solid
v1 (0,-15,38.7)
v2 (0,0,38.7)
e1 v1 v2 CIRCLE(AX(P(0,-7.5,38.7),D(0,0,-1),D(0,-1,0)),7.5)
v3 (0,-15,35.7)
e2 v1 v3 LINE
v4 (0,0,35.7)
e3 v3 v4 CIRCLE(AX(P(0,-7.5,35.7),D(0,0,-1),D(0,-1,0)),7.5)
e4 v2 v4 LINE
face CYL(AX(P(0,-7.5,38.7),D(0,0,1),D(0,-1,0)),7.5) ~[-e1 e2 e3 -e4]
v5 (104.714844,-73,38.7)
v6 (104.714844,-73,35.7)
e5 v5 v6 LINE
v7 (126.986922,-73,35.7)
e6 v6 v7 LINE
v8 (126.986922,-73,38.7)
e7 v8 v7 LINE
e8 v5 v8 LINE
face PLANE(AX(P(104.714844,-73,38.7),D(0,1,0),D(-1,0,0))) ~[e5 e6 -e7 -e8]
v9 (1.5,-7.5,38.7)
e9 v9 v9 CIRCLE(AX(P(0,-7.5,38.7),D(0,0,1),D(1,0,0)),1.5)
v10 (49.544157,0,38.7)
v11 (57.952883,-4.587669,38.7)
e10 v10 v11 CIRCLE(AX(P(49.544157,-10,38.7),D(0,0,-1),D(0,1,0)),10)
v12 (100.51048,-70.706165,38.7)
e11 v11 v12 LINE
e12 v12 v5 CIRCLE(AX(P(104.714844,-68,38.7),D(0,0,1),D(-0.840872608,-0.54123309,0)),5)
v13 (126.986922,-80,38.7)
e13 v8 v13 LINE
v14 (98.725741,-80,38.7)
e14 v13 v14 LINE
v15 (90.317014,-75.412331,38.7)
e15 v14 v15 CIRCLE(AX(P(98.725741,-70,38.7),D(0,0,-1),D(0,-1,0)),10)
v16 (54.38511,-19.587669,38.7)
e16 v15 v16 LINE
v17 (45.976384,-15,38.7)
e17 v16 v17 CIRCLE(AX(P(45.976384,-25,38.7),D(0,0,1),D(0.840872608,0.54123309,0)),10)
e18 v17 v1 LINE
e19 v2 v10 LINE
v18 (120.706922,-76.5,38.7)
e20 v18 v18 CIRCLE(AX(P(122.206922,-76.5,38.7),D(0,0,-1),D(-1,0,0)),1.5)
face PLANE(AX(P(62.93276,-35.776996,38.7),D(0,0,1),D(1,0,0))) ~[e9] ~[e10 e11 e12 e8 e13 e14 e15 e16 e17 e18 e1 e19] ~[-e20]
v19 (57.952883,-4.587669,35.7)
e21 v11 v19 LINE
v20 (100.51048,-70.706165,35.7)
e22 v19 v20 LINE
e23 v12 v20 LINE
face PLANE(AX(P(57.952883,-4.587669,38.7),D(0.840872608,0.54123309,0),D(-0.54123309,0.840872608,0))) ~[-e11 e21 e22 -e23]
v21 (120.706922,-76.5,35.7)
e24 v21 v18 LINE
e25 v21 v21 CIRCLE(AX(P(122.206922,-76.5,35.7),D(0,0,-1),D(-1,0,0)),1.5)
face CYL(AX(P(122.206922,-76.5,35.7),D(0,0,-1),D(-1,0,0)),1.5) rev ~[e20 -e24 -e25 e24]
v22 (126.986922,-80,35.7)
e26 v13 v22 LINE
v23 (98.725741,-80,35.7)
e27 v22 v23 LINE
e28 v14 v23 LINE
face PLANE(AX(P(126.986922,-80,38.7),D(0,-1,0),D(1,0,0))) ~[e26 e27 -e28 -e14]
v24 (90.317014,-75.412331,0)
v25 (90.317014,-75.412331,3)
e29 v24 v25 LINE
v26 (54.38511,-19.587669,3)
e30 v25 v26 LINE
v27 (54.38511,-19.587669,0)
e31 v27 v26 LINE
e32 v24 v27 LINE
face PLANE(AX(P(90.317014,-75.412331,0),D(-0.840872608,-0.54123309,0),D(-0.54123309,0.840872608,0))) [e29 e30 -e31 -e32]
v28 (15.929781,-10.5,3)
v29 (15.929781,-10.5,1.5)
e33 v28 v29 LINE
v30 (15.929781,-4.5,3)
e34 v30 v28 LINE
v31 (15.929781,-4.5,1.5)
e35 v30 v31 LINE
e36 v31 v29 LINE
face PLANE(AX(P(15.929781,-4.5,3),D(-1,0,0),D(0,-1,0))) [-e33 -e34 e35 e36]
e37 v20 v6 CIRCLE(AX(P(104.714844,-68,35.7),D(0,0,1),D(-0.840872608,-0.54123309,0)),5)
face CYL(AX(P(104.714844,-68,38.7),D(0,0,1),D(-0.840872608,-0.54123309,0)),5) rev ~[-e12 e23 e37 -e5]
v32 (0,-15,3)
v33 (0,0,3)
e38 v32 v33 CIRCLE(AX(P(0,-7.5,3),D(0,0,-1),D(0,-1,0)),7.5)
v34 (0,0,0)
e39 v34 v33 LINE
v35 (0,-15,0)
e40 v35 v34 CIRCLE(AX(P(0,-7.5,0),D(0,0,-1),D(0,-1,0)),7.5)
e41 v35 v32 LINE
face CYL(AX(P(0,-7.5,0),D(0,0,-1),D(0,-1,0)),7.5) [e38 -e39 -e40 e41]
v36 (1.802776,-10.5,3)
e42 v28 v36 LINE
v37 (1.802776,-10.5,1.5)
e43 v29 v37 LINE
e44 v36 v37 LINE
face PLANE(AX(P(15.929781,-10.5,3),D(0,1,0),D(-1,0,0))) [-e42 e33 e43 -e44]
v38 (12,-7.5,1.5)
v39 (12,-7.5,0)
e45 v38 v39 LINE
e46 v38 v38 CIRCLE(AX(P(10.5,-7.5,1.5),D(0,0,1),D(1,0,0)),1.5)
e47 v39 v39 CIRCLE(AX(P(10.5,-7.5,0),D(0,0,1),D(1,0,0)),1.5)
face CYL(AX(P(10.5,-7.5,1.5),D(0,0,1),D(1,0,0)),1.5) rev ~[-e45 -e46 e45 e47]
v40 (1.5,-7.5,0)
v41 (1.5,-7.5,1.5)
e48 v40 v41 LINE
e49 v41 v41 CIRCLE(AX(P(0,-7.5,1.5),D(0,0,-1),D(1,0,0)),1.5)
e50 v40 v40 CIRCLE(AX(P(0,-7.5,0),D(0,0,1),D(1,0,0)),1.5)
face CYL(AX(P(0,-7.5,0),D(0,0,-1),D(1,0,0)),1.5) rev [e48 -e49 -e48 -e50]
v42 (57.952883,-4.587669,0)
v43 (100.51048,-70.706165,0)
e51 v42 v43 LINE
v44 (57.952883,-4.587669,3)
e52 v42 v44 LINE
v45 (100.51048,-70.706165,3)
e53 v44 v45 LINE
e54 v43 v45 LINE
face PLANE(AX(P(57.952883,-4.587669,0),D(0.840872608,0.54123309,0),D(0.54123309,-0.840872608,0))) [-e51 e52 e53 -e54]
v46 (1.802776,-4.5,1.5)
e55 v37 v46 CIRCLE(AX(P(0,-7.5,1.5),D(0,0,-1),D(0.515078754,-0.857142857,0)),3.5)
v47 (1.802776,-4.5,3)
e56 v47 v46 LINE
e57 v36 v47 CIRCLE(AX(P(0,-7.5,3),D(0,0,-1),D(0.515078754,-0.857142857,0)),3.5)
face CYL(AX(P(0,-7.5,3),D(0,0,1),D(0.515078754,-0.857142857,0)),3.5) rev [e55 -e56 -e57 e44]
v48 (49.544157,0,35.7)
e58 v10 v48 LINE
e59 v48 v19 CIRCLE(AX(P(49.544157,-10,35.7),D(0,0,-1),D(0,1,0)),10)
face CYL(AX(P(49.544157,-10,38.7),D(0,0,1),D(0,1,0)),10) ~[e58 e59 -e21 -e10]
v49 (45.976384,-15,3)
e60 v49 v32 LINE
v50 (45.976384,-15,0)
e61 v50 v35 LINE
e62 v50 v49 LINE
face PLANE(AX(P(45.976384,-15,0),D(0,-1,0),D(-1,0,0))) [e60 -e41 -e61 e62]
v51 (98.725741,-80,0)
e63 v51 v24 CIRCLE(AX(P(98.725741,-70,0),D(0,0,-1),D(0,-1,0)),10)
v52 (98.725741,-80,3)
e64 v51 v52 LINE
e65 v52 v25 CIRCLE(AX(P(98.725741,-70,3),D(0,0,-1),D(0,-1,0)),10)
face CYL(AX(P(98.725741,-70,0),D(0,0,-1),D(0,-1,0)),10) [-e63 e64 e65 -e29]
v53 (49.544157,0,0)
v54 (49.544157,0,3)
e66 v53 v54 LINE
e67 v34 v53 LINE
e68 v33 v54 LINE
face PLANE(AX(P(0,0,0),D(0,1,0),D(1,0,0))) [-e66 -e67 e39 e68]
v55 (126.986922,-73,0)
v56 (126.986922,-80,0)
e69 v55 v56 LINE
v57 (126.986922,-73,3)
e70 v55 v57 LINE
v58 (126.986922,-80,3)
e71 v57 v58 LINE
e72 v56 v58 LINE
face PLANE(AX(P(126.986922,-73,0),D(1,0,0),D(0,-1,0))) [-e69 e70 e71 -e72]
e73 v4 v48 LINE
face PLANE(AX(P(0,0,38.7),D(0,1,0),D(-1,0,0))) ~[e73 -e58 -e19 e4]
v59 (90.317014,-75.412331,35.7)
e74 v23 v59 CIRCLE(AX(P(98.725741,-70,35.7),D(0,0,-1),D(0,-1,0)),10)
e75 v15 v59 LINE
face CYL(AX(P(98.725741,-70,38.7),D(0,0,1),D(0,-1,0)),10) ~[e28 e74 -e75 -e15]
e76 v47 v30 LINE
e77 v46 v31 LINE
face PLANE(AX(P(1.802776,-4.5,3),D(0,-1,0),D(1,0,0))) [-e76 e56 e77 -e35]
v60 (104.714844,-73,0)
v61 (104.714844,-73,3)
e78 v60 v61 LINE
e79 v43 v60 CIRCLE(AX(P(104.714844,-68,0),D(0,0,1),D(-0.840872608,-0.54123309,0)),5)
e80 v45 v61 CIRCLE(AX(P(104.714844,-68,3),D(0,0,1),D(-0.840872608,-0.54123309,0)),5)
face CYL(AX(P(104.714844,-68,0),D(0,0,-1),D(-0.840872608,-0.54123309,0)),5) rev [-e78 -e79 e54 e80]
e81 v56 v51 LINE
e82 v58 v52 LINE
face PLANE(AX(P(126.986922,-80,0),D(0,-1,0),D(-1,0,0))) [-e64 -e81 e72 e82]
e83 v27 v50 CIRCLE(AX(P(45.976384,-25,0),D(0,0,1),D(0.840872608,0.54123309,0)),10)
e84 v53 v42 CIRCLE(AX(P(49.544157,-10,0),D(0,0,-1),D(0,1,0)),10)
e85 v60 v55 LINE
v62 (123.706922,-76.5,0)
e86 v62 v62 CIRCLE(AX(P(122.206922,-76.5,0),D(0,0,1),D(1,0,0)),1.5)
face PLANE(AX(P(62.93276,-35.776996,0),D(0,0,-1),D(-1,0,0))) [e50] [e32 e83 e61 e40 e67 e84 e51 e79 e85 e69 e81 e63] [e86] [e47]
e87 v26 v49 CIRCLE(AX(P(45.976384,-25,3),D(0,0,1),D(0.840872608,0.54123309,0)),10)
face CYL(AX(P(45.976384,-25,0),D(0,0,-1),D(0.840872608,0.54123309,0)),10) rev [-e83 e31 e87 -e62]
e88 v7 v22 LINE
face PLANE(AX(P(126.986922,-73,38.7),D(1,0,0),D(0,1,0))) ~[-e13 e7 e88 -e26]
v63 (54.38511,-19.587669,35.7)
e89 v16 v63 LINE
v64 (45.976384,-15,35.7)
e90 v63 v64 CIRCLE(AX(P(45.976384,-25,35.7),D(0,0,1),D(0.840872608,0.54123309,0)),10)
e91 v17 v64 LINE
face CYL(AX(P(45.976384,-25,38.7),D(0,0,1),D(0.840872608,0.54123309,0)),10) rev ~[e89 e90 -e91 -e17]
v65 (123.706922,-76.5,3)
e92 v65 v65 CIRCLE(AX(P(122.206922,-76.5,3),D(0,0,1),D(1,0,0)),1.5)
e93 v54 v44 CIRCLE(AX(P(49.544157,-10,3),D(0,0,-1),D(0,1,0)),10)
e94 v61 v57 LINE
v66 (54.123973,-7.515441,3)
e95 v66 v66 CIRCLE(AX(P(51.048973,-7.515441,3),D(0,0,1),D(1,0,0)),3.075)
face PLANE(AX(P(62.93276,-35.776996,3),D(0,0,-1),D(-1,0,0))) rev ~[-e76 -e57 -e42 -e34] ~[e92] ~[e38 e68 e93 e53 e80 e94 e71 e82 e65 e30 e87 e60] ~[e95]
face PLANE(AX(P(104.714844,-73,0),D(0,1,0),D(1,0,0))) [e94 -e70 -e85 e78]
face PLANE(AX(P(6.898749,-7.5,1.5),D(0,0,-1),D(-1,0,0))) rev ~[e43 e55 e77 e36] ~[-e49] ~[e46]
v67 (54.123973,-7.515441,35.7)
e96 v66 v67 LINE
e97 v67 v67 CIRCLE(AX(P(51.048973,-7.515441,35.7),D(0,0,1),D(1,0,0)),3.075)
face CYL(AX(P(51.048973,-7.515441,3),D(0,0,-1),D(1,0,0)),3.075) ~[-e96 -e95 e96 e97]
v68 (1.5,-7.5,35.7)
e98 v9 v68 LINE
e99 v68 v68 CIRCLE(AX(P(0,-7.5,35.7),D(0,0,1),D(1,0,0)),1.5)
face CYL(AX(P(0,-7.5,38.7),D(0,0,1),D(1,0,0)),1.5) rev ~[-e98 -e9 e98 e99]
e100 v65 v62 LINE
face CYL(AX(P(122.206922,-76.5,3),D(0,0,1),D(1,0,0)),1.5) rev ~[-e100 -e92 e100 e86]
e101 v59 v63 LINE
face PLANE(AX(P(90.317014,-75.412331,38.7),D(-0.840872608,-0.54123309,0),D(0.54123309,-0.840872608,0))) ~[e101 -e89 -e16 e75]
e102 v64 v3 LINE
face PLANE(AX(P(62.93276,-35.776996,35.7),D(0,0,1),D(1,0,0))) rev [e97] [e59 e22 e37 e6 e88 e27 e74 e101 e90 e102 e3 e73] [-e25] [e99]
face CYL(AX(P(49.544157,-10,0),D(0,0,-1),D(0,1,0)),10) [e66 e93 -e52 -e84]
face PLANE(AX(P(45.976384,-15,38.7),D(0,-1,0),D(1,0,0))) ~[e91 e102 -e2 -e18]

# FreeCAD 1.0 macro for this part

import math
import FreeCAD as App
import Part
import Sketcher

V = App.Vector
Q = App.Units.Quantity

doc = App.newDocument("Part")
params = doc.addObject("Spreadsheet::Sheet", "Params")
for row, (alias, value) in enumerate([
    ("sketch1_diameter", "3 mm"),
    ("sketch1_radius", "5 mm"),
    ("sketch1_radius2", "10 mm"),
    ("sketch1_radius3", "7.5 mm"),
    ("sketch1_height", "7 mm"),
    ("pad1_length", "3 mm"),
    ("sketch2_diameter", "3 mm"),
    ("sketch3_radius", "3.5 mm"),
    ("sketch3_height", "6 mm"),
    ("pocket2_length", "1.5 mm"),
    ("sketch4_diameter", "3 mm"),
    ("sketch5_diameter", "6.15 mm"),
    ("pad2_length", "16.35 mm"),
    ("sketch6_diameter", "6.15 mm"),
    ("pad3_length", "16.35 mm"),
    ("sketch7_diameter", "6.15 mm"),
    ("pad4_length", "16.35 mm"),
    ("sketch8_diameter", "3 mm"),
    ("pocket4_length", "41.5 mm"),
], start=1):
    params.set(f"A{row}", alias)
    params.set(f"B{row}", "=" + value)
    params.setAlias(f"B{row}", alias)

body = doc.addObject("PartDesign::Body", "Body")

# Sketch on XY plane
sketch1 = body.newObject("Sketcher::SketchObject", "Sketch")
sketch1.AttachmentSupport = (doc.getObject("XY_Plane"), [""])
sketch1.MapMode = "FlatFace"
sketch1.addGeometry(Part.ArcOfCircle(Part.Circle(V(104.7, -68, 0), V(0, 0, 1), 5), math.radians(-147), math.radians(-90)), False)
sketch1.addGeometry(Part.LineSegment(V(100.5, -70.7, 0), V(58, -4.6, 0)), False)
sketch1.addGeometry(Part.ArcOfCircle(Part.Circle(V(49.5, -10, 0), V(0, 0, 1), 10), math.radians(33), math.radians(90)), False)
sketch1.addGeometry(Part.LineSegment(V(49.5, 0, 0), V(0, 0, 0)), False)
sketch1.addGeometry(Part.ArcOfCircle(Part.Circle(V(0, -7.5, 0), V(0, 0, 1), 7.5), math.radians(90), math.radians(270)), False)
sketch1.addGeometry(Part.LineSegment(V(0, -15, 0), V(46, -15, 0)), False)
sketch1.addGeometry(Part.ArcOfCircle(Part.Circle(V(46, -25, 0), V(0, 0, 1), 10), math.radians(33), math.radians(90)), False)
sketch1.addGeometry(Part.LineSegment(V(54.4, -19.6, 0), V(90.3, -75.4, 0)), False)
sketch1.addGeometry(Part.ArcOfCircle(Part.Circle(V(98.7, -70, 0), V(0, 0, 1), 10), math.radians(-147), math.radians(-90)), False)
sketch1.addGeometry(Part.LineSegment(V(98.7, -80, 0), V(127, -80, 0)), False)
sketch1.addGeometry(Part.LineSegment(V(127, -80, 0), V(127, -73, 0)), False)
sketch1.addGeometry(Part.LineSegment(V(127, -73, 0), V(104.7, -73, 0)), False)
sketch1.addGeometry(Part.Circle(V(0, -7.5, 0), V(0, 0, 1), 1.5), False)
sketch1.addConstraint(Sketcher.Constraint("Tangent", 0, 1, 1, 1))
sketch1.addConstraint(Sketcher.Constraint("Tangent", 1, 2, 2, 1))
sketch1.addConstraint(Sketcher.Constraint("Tangent", 2, 2, 3, 1))
sketch1.addConstraint(Sketcher.Constraint("Tangent", 3, 2, 4, 1))
sketch1.addConstraint(Sketcher.Constraint("Tangent", 4, 2, 5, 1))
sketch1.addConstraint(Sketcher.Constraint("Tangent", 5, 2, 6, 2))
sketch1.addConstraint(Sketcher.Constraint("Tangent", 6, 1, 7, 1))
sketch1.addConstraint(Sketcher.Constraint("Tangent", 7, 2, 8, 1))
sketch1.addConstraint(Sketcher.Constraint("Tangent", 8, 2, 9, 1))
sketch1.addConstraint(Sketcher.Constraint("Coincident", 9, 2, 10, 1))
sketch1.addConstraint(Sketcher.Constraint("Coincident", 10, 2, 11, 1))
sketch1.addConstraint(Sketcher.Constraint("Tangent", 11, 2, 0, 2))
sketch1.addConstraint(Sketcher.Constraint("Horizontal", 3))
sketch1.addConstraint(Sketcher.Constraint("Horizontal", 5))
sketch1.addConstraint(Sketcher.Constraint("Horizontal", 9))
sketch1.addConstraint(Sketcher.Constraint("Vertical", 10))
sketch1.addConstraint(Sketcher.Constraint("Horizontal", 11))
sketch1.addConstraint(Sketcher.Constraint("Coincident", 3, 2, -1, 1))
sketch1.addConstraint(Sketcher.Constraint("Coincident", 12, 3, 4, 3))
sketch1.addConstraint(Sketcher.Constraint("Equal", 2, 6))
sketch1.addConstraint(Sketcher.Constraint("Equal", 6, 8))
sketch1.addConstraint(Sketcher.Constraint("Parallel", 1, 7))
sketch1.addConstraint(Sketcher.Constraint("Diameter", 12, Q("3 mm")))
sketch1.addConstraint(Sketcher.Constraint("Radius", 0, Q("5 mm")))
sketch1.addConstraint(Sketcher.Constraint("Radius", 2, Q("10 mm")))
sketch1.addConstraint(Sketcher.Constraint("Radius", 4, Q("7.5 mm")))
sketch1.addConstraint(Sketcher.Constraint("DistanceY", 10, 1, 10, 2, Q("7 mm")))
sketch1.addConstraint(Sketcher.Constraint("DistanceY", 0, 3, -1, 1, Q("68 mm")))
sketch1.addConstraint(Sketcher.Constraint("DistanceX", 9, 1, 9, 2, Q("28.261181 mm")))
sketch1.addConstraint(Sketcher.Constraint("DistanceX", 11, 2, 11, 1, Q("22.272078 mm")))
sketch1.addConstraint(Sketcher.Constraint("DistanceX", 6, 3, 1, 2, Q("11.976499 mm")))
sketch1.addConstraint(Sketcher.Constraint("DistanceX", 3, 2, 3, 1, Q("49.544157 mm")))
sketch1.setExpression("Constraints[22]", "Params.sketch1_diameter")
sketch1.setExpression("Constraints[23]", "Params.sketch1_radius")
sketch1.setExpression("Constraints[24]", "Params.sketch1_radius2")
sketch1.setExpression("Constraints[25]", "Params.sketch1_radius3")
sketch1.setExpression("Constraints[26]", "Params.sketch1_height")
pad1 = body.newObject("PartDesign::Pad", "Pad")
pad1.Profile = sketch1
pad1.setExpression("Length", "Params.pad1_length")

# Sketch on XY plane
sketch2 = body.newObject("Sketcher::SketchObject", "Sketch001")
sketch2.AttachmentSupport = (doc.getObject("XY_Plane"), [""])
sketch2.MapMode = "FlatFace"
sketch2.AttachmentOffset = App.Placement(V(0, 0, 3), App.Rotation())
sketch2.addGeometry(Part.Circle(V(122.2, -76.5, 0), V(0, 0, 1), 1.5), False)
sketch2.addConstraint(Sketcher.Constraint("Diameter", 0, Q("3 mm")))
sketch2.addConstraint(Sketcher.Constraint("DistanceY", 0, 3, -1, 1, Q("76.5 mm")))
sketch2.addConstraint(Sketcher.Constraint("DistanceX", -1, 1, 0, 3, Q("122.206922 mm")))
sketch2.setExpression("Constraints[0]", "Params.sketch2_diameter")
pocket1 = body.newObject("PartDesign::Pocket", "Pocket")
pocket1.Profile = sketch2
pocket1.Type = "ThroughAll"
pocket1.Midplane = True

# Sketch on XY plane
sketch3 = body.newObject("Sketcher::SketchObject", "Sketch002")
sketch3.AttachmentSupport = (doc.getObject("XY_Plane"), [""])
sketch3.MapMode = "FlatFace"
sketch3.AttachmentOffset = App.Placement(V(0, 0, 3), App.Rotation())
sketch3.addGeometry(Part.LineSegment(V(15.9, -4.5, 0), V(1.8, -4.5, 0)), False)
sketch3.addGeometry(Part.ArcOfCircle(Part.Circle(V(0, -7.5, 0), V(0, 0, 1), 3.5), math.radians(59), math.radians(301)), False)
sketch3.addGeometry(Part.LineSegment(V(1.8, -10.5, 0), V(15.9, -10.5, 0)), False)
sketch3.addGeometry(Part.LineSegment(V(15.9, -10.5, 0), V(15.9, -4.5, 0)), False)
sketch3.addConstraint(Sketcher.Constraint("Coincident", 0, 2, 1, 1))
sketch3.addConstraint(Sketcher.Constraint("Coincident", 1, 2, 2, 1))
sketch3.addConstraint(Sketcher.Constraint("Coincident", 2, 2, 3, 1))
sketch3.addConstraint(Sketcher.Constraint("Coincident", 3, 2, 0, 1))
sketch3.addConstraint(Sketcher.Constraint("Horizontal", 0))
sketch3.addConstraint(Sketcher.Constraint("Horizontal", 2))
sketch3.addConstraint(Sketcher.Constraint("Vertical", 3))
sketch3.addConstraint(Sketcher.Constraint("PointOnObject", 1, 3, -2))
sketch3.addConstraint(Sketcher.Constraint("Vertical", 0, 2, 1, 2))
sketch3.addConstraint(Sketcher.Constraint("Radius", 1, Q("3.5 mm")))
sketch3.addConstraint(Sketcher.Constraint("DistanceY", 3, 1, 3, 2, Q("6 mm")))
sketch3.addConstraint(Sketcher.Constraint("DistanceY", 1, 3, -1, 1, Q("7.5 mm")))
sketch3.addConstraint(Sketcher.Constraint("DistanceX", 0, 2, 0, 1, Q("14.127005 mm")))
sketch3.setExpression("Constraints[9]", "Params.sketch3_radius")
sketch3.setExpression("Constraints[10]", "Params.sketch3_height")
pocket2 = body.newObject("PartDesign::Pocket", "Pocket001")
pocket2.Profile = sketch3
pocket2.setExpression("Length", "Params.pocket2_length")

# Sketch on XY plane
sketch4 = body.newObject("Sketcher::SketchObject", "Sketch003")
sketch4.AttachmentSupport = (doc.getObject("XY_Plane"), [""])
sketch4.MapMode = "FlatFace"
sketch4.AttachmentOffset = App.Placement(V(0, 0, 1.5), App.Rotation())
sketch4.addGeometry(Part.Circle(V(10.5, -7.5, 0), V(0, 0, 1), 1.5), False)
sketch4.addConstraint(Sketcher.Constraint("Diameter", 0, Q("3 mm")))
sketch4.addConstraint(Sketcher.Constraint("DistanceX", -1, 1, 0, 3, Q("10.5 mm")))
sketch4.addConstraint(Sketcher.Constraint("DistanceY", 0, 3, -1, 1, Q("7.5 mm")))
sketch4.setExpression("Constraints[0]", "Params.sketch4_diameter")
pocket3 = body.newObject("PartDesign::Pocket", "Pocket002")
pocket3.Profile = sketch4
pocket3.Type = "ThroughAll"

# Sketch on XY plane
sketch5 = body.newObject("Sketcher::SketchObject", "Sketch004")
sketch5.AttachmentSupport = (doc.getObject("XY_Plane"), [""])
sketch5.MapMode = "FlatFace"
sketch5.AttachmentOffset = App.Placement(V(0, 0, 3), App.Rotation())
sketch5.addGeometry(Part.Circle(V(51, -7.5, 0), V(0, 0, 1), 3.1), False)
sketch5.addConstraint(Sketcher.Constraint("Diameter", 0, Q("6.15 mm")))
sketch5.addConstraint(Sketcher.Constraint("DistanceY", 0, 3, -1, 1, Q("7.515441 mm")))
sketch5.addConstraint(Sketcher.Constraint("DistanceX", -1, 1, 0, 3, Q("51.048973 mm")))
sketch5.setExpression("Constraints[0]", "Params.sketch5_diameter")
pad2 = body.newObject("PartDesign::Pad", "Pad001")
pad2.Profile = sketch5
pad2.setExpression("Length", "Params.pad2_length")
doc.recompute()

datumplane = body.newObject("PartDesign::Plane", "DatumPlane")
datumplane.AttachmentSupport = (doc.getObject("XY_Plane"), [""])
datumplane.MapMode = "FlatFace"
datumplane.AttachmentOffset = App.Placement(V(0, 0, 19.35), App.Rotation())
mirrored = body.newObject("PartDesign::Mirrored", "Mirrored")
mirrored.Originals = [pad2]
mirrored.MirrorPlane = (datumplane, [""])
body.Tip = mirrored
doc.recompute()

datumplane2 = body.newObject("PartDesign::Plane", "DatumPlane001")
datumplane2.AttachmentSupport = (doc.getObject("XY_Plane"), [""])
datumplane2.MapMode = "FlatFace"
datumplane2.AttachmentOffset = App.Placement(V(0, 0, 19.35), App.Rotation())
mirrored2 = body.newObject("PartDesign::Mirrored", "Mirrored001")
mirrored2.Originals = [pad1]
mirrored2.MirrorPlane = (datumplane2, [""])
body.Tip = mirrored2

# Sketch on XY plane
sketch6 = body.newObject("Sketcher::SketchObject", "Sketch005")
sketch6.AttachmentSupport = (doc.getObject("XY_Plane"), [""])
sketch6.MapMode = "FlatFace"
sketch6.AttachmentOffset = App.Placement(V(0, 0, 3), App.Rotation())
sketch6.addGeometry(Part.Circle(V(51, -7.5, 0), V(0, 0, 1), 3.1), False)
sketch6.addConstraint(Sketcher.Constraint("Diameter", 0, Q("6.15 mm")))
sketch6.addConstraint(Sketcher.Constraint("DistanceY", 0, 3, -1, 1, Q("7.515441 mm")))
sketch6.addConstraint(Sketcher.Constraint("DistanceX", -1, 1, 0, 3, Q("51.048973 mm")))
sketch6.setExpression("Constraints[0]", "Params.sketch6_diameter")
pad3 = body.newObject("PartDesign::Pad", "Pad002")
pad3.Profile = sketch6
pad3.setExpression("Length", "Params.pad3_length")

# Sketch on XY plane
sketch7 = body.newObject("Sketcher::SketchObject", "Sketch006")
sketch7.AttachmentSupport = (doc.getObject("XY_Plane"), [""])
sketch7.MapMode = "FlatFace"
sketch7.AttachmentOffset = App.Placement(V(0, 0, 35.7), App.Rotation())
sketch7.addGeometry(Part.Circle(V(51, -7.5, 0), V(0, 0, 1), 3.1), False)
sketch7.addConstraint(Sketcher.Constraint("Diameter", 0, Q("6.15 mm")))
sketch7.addConstraint(Sketcher.Constraint("DistanceY", 0, 3, -1, 1, Q("7.515441 mm")))
sketch7.addConstraint(Sketcher.Constraint("DistanceX", -1, 1, 0, 3, Q("51.048973 mm")))
sketch7.setExpression("Constraints[0]", "Params.sketch7_diameter")
pad4 = body.newObject("PartDesign::Pad", "Pad003")
pad4.Profile = sketch7
pad4.setExpression("Length", "Params.pad4_length")
pad4.Reversed = True

# Sketch on XY plane
sketch8 = body.newObject("Sketcher::SketchObject", "Sketch007")
sketch8.AttachmentSupport = (doc.getObject("XY_Plane"), [""])
sketch8.MapMode = "FlatFace"
sketch8.AttachmentOffset = App.Placement(V(0, 0, 35.7), App.Rotation())
sketch8.addGeometry(Part.Circle(V(122.2, -76.5, 0), V(0, 0, 1), 1.5), False)
sketch8.addConstraint(Sketcher.Constraint("Diameter", 0, Q("3 mm")))
sketch8.addConstraint(Sketcher.Constraint("DistanceY", 0, 3, -1, 1, Q("76.5 mm")))
sketch8.addConstraint(Sketcher.Constraint("DistanceX", -1, 1, 0, 3, Q("122.206922 mm")))
sketch8.setExpression("Constraints[0]", "Params.sketch8_diameter")
pocket4 = body.newObject("PartDesign::Pocket", "Pocket003")
pocket4.Profile = sketch8
pocket4.setExpression("Length", "Params.pocket4_length")
pocket4.Reversed = True

doc.recompute()
